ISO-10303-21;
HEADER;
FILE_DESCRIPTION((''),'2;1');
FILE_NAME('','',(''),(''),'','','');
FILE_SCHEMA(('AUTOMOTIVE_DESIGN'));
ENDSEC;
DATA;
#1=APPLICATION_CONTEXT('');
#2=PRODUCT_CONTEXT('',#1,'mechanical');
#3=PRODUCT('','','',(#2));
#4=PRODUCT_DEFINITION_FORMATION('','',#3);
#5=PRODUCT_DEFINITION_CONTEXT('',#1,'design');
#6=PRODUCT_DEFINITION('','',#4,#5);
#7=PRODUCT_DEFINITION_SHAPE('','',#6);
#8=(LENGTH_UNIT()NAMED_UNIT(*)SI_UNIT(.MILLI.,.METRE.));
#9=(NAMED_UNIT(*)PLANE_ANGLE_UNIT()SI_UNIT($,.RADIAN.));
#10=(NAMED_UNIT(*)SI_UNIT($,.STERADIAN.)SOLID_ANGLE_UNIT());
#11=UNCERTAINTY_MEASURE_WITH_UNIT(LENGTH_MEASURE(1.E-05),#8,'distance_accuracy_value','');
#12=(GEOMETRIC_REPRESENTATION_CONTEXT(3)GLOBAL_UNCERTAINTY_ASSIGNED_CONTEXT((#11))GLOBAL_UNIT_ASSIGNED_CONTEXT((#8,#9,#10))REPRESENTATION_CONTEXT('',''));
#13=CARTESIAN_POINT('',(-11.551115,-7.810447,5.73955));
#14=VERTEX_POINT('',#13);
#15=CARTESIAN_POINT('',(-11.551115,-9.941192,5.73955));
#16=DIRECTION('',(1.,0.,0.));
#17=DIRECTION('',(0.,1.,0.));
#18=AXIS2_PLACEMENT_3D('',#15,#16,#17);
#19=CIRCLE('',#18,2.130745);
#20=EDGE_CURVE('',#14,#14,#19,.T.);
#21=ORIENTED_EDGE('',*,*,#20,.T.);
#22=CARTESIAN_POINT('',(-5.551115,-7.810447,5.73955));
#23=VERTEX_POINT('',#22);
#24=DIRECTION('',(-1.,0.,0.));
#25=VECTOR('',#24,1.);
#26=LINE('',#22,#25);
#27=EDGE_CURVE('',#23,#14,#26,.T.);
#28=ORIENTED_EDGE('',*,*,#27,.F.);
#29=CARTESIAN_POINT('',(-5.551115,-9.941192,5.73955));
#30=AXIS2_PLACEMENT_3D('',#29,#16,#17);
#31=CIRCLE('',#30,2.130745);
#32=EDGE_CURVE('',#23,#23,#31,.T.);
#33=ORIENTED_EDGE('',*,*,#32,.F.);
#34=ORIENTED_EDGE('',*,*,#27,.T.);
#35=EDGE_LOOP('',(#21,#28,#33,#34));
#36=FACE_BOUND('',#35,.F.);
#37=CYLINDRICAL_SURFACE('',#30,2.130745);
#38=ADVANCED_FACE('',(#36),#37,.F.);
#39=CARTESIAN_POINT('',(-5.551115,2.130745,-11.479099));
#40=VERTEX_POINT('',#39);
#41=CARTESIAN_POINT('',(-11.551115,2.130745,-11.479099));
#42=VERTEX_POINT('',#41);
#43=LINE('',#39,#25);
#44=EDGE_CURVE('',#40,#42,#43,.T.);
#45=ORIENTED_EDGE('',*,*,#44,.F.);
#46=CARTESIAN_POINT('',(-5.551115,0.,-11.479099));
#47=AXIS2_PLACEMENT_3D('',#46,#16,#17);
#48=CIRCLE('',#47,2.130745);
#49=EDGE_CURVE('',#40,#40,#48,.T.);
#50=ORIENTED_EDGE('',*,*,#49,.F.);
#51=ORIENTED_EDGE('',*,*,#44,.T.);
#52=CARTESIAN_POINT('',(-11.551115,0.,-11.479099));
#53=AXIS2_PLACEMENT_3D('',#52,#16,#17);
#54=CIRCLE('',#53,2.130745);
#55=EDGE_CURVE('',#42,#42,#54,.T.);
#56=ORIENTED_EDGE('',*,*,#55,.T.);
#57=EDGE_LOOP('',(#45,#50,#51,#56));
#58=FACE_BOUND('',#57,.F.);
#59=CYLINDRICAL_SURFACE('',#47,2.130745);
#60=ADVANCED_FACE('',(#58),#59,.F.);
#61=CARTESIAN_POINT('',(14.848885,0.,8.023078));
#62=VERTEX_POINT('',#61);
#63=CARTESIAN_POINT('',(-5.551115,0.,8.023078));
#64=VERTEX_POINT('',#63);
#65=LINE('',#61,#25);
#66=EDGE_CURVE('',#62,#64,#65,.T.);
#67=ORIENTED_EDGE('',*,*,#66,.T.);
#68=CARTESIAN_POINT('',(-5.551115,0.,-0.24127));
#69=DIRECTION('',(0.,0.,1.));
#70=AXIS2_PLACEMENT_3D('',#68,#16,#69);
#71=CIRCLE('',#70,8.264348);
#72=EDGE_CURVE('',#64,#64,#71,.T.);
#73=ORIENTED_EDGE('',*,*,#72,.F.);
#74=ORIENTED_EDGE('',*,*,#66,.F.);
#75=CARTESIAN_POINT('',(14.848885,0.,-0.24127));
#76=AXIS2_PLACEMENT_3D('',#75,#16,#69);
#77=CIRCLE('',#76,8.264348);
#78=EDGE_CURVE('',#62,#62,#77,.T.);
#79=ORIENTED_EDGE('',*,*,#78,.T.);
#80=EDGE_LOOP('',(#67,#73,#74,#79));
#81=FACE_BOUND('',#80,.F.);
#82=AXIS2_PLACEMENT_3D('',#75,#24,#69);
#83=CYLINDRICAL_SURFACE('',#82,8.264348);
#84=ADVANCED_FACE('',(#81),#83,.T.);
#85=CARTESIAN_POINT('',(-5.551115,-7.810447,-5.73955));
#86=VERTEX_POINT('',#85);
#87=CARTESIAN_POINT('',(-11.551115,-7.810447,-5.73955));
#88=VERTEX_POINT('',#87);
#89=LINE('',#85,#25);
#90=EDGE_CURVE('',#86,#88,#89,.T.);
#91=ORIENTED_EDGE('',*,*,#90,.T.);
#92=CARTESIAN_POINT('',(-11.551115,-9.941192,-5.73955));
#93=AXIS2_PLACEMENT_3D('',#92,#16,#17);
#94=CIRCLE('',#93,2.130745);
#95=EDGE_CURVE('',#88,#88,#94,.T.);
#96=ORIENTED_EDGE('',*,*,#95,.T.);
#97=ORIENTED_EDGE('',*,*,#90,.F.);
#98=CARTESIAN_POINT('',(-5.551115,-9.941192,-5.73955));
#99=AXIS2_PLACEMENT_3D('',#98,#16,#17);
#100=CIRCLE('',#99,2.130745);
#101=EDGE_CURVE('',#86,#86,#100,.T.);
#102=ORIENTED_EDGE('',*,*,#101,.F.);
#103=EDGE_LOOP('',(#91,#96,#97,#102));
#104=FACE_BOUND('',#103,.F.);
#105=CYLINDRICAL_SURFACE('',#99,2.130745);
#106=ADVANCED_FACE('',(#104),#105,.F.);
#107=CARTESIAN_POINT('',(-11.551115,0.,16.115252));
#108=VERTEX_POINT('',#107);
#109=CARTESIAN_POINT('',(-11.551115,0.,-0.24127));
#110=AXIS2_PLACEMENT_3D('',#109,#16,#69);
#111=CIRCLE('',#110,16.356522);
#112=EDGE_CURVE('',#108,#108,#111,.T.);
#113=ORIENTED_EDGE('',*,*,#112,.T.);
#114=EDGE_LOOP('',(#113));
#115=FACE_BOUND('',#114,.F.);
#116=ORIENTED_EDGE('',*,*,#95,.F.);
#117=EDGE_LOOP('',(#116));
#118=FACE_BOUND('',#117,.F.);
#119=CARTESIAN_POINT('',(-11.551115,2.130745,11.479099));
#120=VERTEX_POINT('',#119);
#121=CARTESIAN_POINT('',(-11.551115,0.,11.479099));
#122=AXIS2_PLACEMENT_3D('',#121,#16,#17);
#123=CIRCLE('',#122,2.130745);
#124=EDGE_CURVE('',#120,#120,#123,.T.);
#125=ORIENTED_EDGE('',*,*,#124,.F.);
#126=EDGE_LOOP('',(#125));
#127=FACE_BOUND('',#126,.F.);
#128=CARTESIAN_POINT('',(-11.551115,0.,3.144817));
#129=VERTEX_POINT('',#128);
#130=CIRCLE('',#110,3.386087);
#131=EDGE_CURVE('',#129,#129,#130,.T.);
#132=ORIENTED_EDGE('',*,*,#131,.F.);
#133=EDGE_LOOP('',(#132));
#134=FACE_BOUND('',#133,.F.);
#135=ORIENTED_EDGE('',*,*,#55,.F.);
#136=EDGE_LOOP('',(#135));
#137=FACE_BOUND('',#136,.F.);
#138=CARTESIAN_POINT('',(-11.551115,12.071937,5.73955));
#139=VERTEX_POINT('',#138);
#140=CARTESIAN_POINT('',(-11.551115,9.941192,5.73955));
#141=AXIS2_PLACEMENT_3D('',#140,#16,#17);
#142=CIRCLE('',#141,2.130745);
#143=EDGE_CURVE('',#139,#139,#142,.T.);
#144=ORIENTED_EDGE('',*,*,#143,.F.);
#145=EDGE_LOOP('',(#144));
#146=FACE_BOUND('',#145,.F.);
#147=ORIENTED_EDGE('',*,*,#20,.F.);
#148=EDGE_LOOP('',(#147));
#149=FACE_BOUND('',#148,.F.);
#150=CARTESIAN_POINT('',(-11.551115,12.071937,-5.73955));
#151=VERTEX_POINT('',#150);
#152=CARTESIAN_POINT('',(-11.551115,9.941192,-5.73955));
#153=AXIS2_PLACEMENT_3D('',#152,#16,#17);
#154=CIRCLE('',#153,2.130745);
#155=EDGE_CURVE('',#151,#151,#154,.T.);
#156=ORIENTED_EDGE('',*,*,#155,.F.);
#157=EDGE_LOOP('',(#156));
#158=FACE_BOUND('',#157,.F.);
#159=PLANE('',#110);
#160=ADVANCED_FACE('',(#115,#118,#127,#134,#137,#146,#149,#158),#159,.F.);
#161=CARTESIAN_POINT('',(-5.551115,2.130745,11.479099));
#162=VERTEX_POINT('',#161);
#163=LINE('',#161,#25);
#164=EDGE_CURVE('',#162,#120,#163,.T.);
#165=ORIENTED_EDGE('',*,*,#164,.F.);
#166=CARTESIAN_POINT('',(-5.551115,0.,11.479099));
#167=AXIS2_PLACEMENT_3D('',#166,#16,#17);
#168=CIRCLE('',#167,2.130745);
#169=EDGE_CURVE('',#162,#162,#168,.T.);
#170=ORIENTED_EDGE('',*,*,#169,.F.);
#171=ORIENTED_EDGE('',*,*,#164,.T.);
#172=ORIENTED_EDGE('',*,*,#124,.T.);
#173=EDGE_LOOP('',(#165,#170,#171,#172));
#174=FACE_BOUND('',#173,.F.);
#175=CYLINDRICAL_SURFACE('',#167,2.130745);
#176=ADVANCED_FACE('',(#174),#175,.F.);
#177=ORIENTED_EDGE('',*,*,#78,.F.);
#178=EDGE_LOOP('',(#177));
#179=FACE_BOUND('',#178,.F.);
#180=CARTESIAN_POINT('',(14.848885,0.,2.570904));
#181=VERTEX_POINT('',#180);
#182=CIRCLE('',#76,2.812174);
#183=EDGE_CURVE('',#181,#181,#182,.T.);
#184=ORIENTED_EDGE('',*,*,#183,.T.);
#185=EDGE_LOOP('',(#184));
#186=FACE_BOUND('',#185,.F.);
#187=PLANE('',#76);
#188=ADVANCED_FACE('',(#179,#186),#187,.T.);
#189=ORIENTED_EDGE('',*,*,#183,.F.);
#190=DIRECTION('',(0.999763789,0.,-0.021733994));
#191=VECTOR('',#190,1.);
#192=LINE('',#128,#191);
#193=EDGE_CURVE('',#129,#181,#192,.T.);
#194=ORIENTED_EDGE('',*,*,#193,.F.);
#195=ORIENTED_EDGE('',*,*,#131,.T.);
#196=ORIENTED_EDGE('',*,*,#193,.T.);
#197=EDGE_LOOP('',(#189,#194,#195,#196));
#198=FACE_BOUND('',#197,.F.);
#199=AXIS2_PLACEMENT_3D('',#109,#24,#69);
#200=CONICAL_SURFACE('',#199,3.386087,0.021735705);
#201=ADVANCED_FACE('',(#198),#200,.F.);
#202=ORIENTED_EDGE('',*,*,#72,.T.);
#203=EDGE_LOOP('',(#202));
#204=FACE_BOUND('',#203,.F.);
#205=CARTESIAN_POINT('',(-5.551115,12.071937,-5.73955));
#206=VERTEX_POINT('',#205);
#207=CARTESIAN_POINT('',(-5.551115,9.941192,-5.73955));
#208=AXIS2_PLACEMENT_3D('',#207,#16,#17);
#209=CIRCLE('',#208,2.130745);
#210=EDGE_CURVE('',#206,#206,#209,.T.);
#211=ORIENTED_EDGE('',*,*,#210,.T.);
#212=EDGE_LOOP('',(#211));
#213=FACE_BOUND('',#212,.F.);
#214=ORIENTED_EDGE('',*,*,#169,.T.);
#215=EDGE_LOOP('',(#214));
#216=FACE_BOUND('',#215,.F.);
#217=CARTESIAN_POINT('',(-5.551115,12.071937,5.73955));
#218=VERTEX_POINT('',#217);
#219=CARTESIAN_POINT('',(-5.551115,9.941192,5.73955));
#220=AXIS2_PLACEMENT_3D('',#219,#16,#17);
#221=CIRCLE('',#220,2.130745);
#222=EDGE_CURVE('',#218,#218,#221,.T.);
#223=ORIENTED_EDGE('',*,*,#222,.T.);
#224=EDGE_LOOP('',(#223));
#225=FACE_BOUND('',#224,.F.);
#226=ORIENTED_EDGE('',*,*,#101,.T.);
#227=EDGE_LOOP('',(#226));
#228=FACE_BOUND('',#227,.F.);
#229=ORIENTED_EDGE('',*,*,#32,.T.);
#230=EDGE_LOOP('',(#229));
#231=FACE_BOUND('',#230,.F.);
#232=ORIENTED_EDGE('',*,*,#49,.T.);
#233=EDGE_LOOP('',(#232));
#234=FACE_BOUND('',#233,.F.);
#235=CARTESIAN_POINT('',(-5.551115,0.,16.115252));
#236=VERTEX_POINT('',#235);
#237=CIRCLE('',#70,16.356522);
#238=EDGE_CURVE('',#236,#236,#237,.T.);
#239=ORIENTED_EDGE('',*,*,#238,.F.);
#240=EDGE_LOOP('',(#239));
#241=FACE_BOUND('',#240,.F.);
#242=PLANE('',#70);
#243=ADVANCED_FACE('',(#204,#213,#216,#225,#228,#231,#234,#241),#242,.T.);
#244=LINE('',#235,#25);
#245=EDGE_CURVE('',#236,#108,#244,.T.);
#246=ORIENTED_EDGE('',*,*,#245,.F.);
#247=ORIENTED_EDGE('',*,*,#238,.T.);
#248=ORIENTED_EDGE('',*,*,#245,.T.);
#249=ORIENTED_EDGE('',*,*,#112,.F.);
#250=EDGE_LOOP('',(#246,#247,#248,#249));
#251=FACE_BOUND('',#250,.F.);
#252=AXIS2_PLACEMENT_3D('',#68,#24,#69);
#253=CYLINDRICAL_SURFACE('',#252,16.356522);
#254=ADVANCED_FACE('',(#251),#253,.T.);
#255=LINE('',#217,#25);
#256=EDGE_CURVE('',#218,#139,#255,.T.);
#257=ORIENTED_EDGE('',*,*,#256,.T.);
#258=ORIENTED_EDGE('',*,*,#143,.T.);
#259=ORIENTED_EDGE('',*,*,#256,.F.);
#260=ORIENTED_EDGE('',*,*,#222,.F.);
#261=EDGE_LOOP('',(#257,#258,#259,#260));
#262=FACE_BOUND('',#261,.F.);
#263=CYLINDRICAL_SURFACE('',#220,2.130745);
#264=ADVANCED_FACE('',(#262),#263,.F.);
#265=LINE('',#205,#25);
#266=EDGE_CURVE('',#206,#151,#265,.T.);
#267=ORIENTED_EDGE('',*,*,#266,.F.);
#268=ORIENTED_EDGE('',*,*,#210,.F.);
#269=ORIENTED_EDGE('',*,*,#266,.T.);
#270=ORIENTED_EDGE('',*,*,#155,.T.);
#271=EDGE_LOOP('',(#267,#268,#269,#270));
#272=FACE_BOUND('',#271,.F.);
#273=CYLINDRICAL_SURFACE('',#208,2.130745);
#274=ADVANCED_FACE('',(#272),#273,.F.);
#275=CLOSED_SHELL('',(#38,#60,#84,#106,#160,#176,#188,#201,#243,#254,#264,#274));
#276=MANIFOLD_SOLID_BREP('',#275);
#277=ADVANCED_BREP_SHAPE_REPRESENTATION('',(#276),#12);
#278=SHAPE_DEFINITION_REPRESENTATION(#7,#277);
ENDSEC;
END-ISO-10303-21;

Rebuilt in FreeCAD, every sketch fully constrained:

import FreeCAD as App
import Part
import Sketcher
Q = App.Units.Quantity


def add_polygon(sketch, points):
    """Adds a closed chain of lines whose ends are joined by coincident constraints."""
    first, n = sketch.GeometryCount, len(points)
    for a, b in zip(points, points[1:] + points[:1]):
        sketch.addGeometry(Part.LineSegment(App.Vector(*a, 0), App.Vector(*b, 0)), False)
    for i in range(n):
        sketch.addConstraint(Sketcher.Constraint("Coincident", first + i, 2, first + (i + 1) % n, 1))

doc = App.newDocument("Part")
body = doc.addObject("PartDesign::Body", "Body")

# Sketch on XZ plane
sketch1 = body.newObject("Sketcher::SketchObject", "Sketch")
sketch1.AttachmentSupport = (doc.getObject("XZ_Plane"), [""])
sketch1.MapMode = "FlatFace"
add_polygon(sketch1, [(-6, 16), (-12, 16), (-12, 3), (15, 3), (15, 8), (-6, 8)])  # lines 0-5
sketch1.addGeometry(Part.LineSegment(App.Vector(-12, 0, 0), App.Vector(15, 0, 0)), True)  # axis
sketch1.addConstraint(Sketcher.Constraint("Horizontal", 0))
sketch1.addConstraint(Sketcher.Constraint("Vertical", 1))
sketch1.addConstraint(Sketcher.Constraint("Vertical", 3))
sketch1.addConstraint(Sketcher.Constraint("Horizontal", 4))
sketch1.addConstraint(Sketcher.Constraint("Vertical", 5))
sketch1.addConstraint(Sketcher.Constraint("Horizontal", 6))
sketch1.addConstraint(Sketcher.Constraint("Vertical", 1, 2, 6, 1))
sketch1.addConstraint(Sketcher.Constraint("Vertical", 3, 2, 6, 2))
sketch1.addConstraint(Sketcher.Constraint("DistanceX", 0, 2, 0, 1, Q("6 mm")))
sketch1.addConstraint(Sketcher.Constraint("DistanceX", 4, 2, 4, 1, Q("20.4 mm")))
sketch1.addConstraint(Sketcher.Constraint("DistanceY", 1, 2, 1, 1, Q("12.970435 mm")))
sketch1.addConstraint(Sketcher.Constraint("DistanceY", 3, 1, 3, 2, Q("5.452174 mm")))
sketch1.addConstraint(Sketcher.Constraint("DistanceY", 5, 1, 5, 2, Q("8.092174 mm")))
sketch1.addConstraint(Sketcher.Constraint("DistanceY", 6, 1, -1, 1, Q("0.24127 mm")))
sketch1.addConstraint(Sketcher.Constraint("DistanceX", 0, 2, -1, 1, Q("11.551115 mm")))
sketch1.addConstraint(Sketcher.Constraint("DistanceY", -1, 1, 0, 2, Q("16.115252 mm")))
revolution = body.newObject("PartDesign::Revolution", "Revolution")
revolution.Profile = sketch1
revolution.ReferenceAxis = (sketch1, ["Axis0"])
revolution.Angle = 360

# Sketch on YZ plane
sketch2 = body.newObject("Sketcher::SketchObject", "Sketch001")
sketch2.AttachmentSupport = (doc.getObject("YZ_Plane"), [""])
sketch2.MapMode = "FlatFace"
sketch2.AttachmentOffset = App.Placement(App.Vector(0, 0, -5.551115), App.Rotation())
sketch2.addGeometry(Part.Circle(App.Vector(-9.9, 5.7, 0), App.Vector(0, 0, 1), 2.1), False)
sketch2.addGeometry(Part.Circle(App.Vector(-9.9, -5.7, 0), App.Vector(0, 0, 1), 2.1), False)
sketch2.addGeometry(Part.Circle(App.Vector(0, -11.5, 0), App.Vector(0, 0, 1), 2.1), False)
sketch2.addGeometry(Part.Circle(App.Vector(9.9, -5.7, 0), App.Vector(0, 0, 1), 2.1), False)
sketch2.addGeometry(Part.Circle(App.Vector(9.9, 5.7, 0), App.Vector(0, 0, 1), 2.1), False)
sketch2.addGeometry(Part.Circle(App.Vector(0, 11.5, 0), App.Vector(0, 0, 1), 2.1), False)
sketch2.addConstraint(Sketcher.Constraint("Equal", 0, 1))
sketch2.addConstraint(Sketcher.Constraint("Equal", 1, 2))
sketch2.addConstraint(Sketcher.Constraint("Equal", 2, 3))
sketch2.addConstraint(Sketcher.Constraint("Equal", 3, 4))
sketch2.addConstraint(Sketcher.Constraint("Equal", 4, 5))
sketch2.addConstraint(Sketcher.Constraint("Symmetric", 0, 3, 3, 3, -1, 1))
sketch2.addConstraint(Sketcher.Constraint("Symmetric", 1, 3, 4, 3, -1, 1))
sketch2.addConstraint(Sketcher.Constraint("Symmetric", 2, 3, 5, 3, -1, 1))
sketch2.addConstraint(Sketcher.Constraint("Symmetric", 1, 3, 3, 3, -2))
sketch2.addConstraint(Sketcher.Constraint("PointOnObject", 2, 3, -2))
sketch2.addConstraint(Sketcher.Constraint("Diameter", 0, Q("4.26149 mm")))
sketch2.addConstraint(Sketcher.Constraint("DistanceY", 2, 3, -1, 1, Q("11.479099 mm")))
sketch2.addConstraint(Sketcher.Constraint("DistanceY", 1, 3, 0, 3, Q("11.4791 mm")))
sketch2.addConstraint(Sketcher.Constraint("DistanceX", 0, 3, -1, 1, Q("9.941192 mm")))
pocket1 = body.newObject("PartDesign::Pocket", "Pocket")
pocket1.Profile = sketch2
pocket1.Type = "ThroughAll"

doc.recompute()
